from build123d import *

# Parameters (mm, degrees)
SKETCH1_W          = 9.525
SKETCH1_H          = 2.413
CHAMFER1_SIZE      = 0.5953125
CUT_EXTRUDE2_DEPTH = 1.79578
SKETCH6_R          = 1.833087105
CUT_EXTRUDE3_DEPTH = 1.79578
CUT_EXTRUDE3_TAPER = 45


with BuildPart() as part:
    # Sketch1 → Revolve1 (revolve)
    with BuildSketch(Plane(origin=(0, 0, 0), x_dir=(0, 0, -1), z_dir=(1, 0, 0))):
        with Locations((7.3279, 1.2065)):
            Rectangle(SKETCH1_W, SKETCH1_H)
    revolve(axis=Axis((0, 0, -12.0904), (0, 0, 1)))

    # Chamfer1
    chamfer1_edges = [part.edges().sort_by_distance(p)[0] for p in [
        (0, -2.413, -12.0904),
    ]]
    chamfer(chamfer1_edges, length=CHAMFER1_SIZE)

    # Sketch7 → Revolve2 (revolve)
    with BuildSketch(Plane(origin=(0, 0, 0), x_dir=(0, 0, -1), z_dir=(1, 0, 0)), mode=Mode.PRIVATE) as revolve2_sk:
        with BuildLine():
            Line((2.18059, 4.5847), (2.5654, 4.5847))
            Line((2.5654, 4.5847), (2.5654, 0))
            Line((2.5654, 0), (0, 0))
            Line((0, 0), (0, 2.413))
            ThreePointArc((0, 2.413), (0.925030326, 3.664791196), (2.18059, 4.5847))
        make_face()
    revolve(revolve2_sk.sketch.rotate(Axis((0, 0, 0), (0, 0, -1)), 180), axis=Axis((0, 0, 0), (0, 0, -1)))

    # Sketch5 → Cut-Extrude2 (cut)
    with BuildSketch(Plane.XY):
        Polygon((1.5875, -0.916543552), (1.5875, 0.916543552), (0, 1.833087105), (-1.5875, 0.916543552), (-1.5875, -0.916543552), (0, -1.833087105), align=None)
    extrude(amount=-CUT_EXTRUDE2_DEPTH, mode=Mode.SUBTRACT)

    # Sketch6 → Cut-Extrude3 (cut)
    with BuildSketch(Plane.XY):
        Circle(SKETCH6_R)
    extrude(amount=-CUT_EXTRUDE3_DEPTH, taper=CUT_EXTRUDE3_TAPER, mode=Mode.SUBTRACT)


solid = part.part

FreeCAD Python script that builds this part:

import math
import FreeCAD as App
import Part
import Sketcher
from FreeCAD import Vector
Q = App.Units.Quantity


def edges_at(feature, points):
    """Names of the edges that pass closest to the given points."""
    edges = feature.Shape.Edges
    near = lambda p: min(range(len(edges)), key=lambda i: edges[i].distToShape(Part.Vertex(*p))[0])
    return sorted({f"Edge{near(p) + 1}" for p in points})

doc = App.newDocument("Part")
params = doc.addObject("Spreadsheet::Sheet", "Params")
for row, (alias, value) in enumerate([
    ("sketch1_width", "0.095 in"),
    ("sketch1_height", "0.375 in"),
    ("revolution_angle", "360 deg"),
    ("chamfer_size", "0.595313 mm"),
    ("sketch2_width", "0.095 in"),
    ("sketch2_height", "0.101 in"),
    ("revolution2_angle", "360 deg"),
    ("pocket1_length", "0.0707 in"),
    ("pocket2_length", "0.0707 in"),
    ("pocket2_taper", "-45 deg"),
], start=1):
    params.set(f"A{row}", alias)
    params.set(f"B{row}", "=" + value)
    params.setAlias(f"B{row}", alias)

body = doc.addObject("PartDesign::Body", "Body")

# Sketch on YZ plane
sketch1 = doc.addObject("Sketcher::SketchObject", "Sketch")
body.addObject(sketch1)
sketch1.AttachmentSupport = (doc.YZ_Plane, [""])
sketch1.MapMode = "FlatFace"
sketch1.addGeometry(Part.LineSegment(Vector(2.4, -2.6, 0), Vector(0, -2.6, 0)), False)
sketch1.addGeometry(Part.LineSegment(Vector(0, -2.6, 0), Vector(0, -12.1, 0)), False)
sketch1.addGeometry(Part.LineSegment(Vector(0, -12.1, 0), Vector(2.4, -12.1, 0)), False)
sketch1.addGeometry(Part.LineSegment(Vector(2.4, -12.1, 0), Vector(2.4, -2.6, 0)), False)
sketch1.addConstraint(Sketcher.Constraint("Coincident", 0, 2, 1, 1))
sketch1.addConstraint(Sketcher.Constraint("Coincident", 1, 2, 2, 1))
sketch1.addConstraint(Sketcher.Constraint("Coincident", 2, 2, 3, 1))
sketch1.addConstraint(Sketcher.Constraint("Coincident", 3, 2, 0, 1))
sketch1.addConstraint(Sketcher.Constraint("Horizontal", 0))
sketch1.addConstraint(Sketcher.Constraint("Vertical", 1))
sketch1.addConstraint(Sketcher.Constraint("Horizontal", 2))
sketch1.addConstraint(Sketcher.Constraint("Vertical", 3))
sketch1.addConstraint(Sketcher.Constraint("PointOnObject", 0, 2, -2))
sketch1.addConstraint(Sketcher.Constraint("DistanceX", 0, 2, 0, 1, Q("0.095 in")))
sketch1.addConstraint(Sketcher.Constraint("DistanceY", 1, 2, 1, 1, Q("0.375 in")))
sketch1.addConstraint(Sketcher.Constraint("DistanceY", 0, 2, -1, 1, Q("0.101 in")))
sketch1.setExpression("Constraints[9]", "Params.sketch1_width")
sketch1.setExpression("Constraints[10]", "Params.sketch1_height")
revolution = doc.addObject("PartDesign::Revolution", "Revolution")
body.addObject(revolution)
revolution.Profile = sketch1
revolution.ReferenceAxis = (sketch1, ["V_Axis"])
revolution.setExpression("Angle", "Params.revolution_angle")
doc.recompute()

chamfer = doc.addObject("PartDesign::Chamfer", "Chamfer")
body.addObject(chamfer)
chamfer.Base = (revolution, edges_at(revolution, [(0, -2.413, -12.09)]))
chamfer.setExpression("Size", "Params.chamfer_size")

# Sketch on YZ plane
sketch2 = doc.addObject("Sketcher::SketchObject", "Sketch001")
body.addObject(sketch2)
sketch2.AttachmentSupport = (doc.YZ_Plane, [""])
sketch2.MapMode = "FlatFace"
sketch2.addGeometry(Part.LineSegment(Vector(4.58, -2.57, 0), Vector(4.58, -2.18, 0)), False)
sketch2.addGeometry(Part.ArcOfCircle(Part.Circle(Vector(0, -4.57, 0), Vector(0, 0, 1), 5.17), math.radians(28), math.radians(62)), False)
sketch2.addGeometry(Part.LineSegment(Vector(2.41, 0, 0), Vector(0, 0, 0)), False)
sketch2.addGeometry(Part.LineSegment(Vector(0, 0, 0), Vector(0, -2.57, 0)), False)
sketch2.addGeometry(Part.LineSegment(Vector(0, -2.57, 0), Vector(4.58, -2.57, 0)), False)
sketch2.addConstraint(Sketcher.Constraint("Coincident", 0, 2, 1, 1))
sketch2.addConstraint(Sketcher.Constraint("Coincident", 1, 2, 2, 1))
sketch2.addConstraint(Sketcher.Constraint("Coincident", 2, 2, 3, 1))
sketch2.addConstraint(Sketcher.Constraint("Coincident", 3, 2, 4, 1))
sketch2.addConstraint(Sketcher.Constraint("Coincident", 4, 2, 0, 1))
sketch2.addConstraint(Sketcher.Constraint("Vertical", 0))
sketch2.addConstraint(Sketcher.Constraint("Horizontal", 2))
sketch2.addConstraint(Sketcher.Constraint("Vertical", 3))
sketch2.addConstraint(Sketcher.Constraint("Horizontal", 4))
sketch2.addConstraint(Sketcher.Constraint("Coincident", 2, 2, -1, 1))
sketch2.addConstraint(Sketcher.Constraint("PointOnObject", 1, 3, -2))
sketch2.addConstraint(Sketcher.Constraint("DistanceX", 2, 2, 2, 1, Q("0.095 in")))
sketch2.addConstraint(Sketcher.Constraint("DistanceY", 3, 2, 3, 1, Q("0.101 in")))
sketch2.addConstraint(Sketcher.Constraint("DistanceX", 4, 1, 4, 2, Q("0.1805 in")))
sketch2.addConstraint(Sketcher.Constraint("Radius", 1, Q("5.172243 mm")))
sketch2.setExpression("Constraints[11]", "Params.sketch2_width")
sketch2.setExpression("Constraints[12]", "Params.sketch2_height")
revolution2 = doc.addObject("PartDesign::Revolution", "Revolution001")
body.addObject(revolution2)
revolution2.Profile = sketch2
revolution2.ReferenceAxis = (sketch2, ["V_Axis"])
revolution2.setExpression("Angle", "Params.revolution2_angle")

# Sketch on XY plane
sketch3 = doc.addObject("Sketcher::SketchObject", "Sketch002")
body.addObject(sketch3)
sketch3.AttachmentSupport = (doc.XY_Plane, [""])
sketch3.MapMode = "FlatFace"
sketch3.addGeometry(Part.LineSegment(Vector(1.6, -0.9, 0), Vector(1.6, 0.9, 0)), False)
sketch3.addGeometry(Part.LineSegment(Vector(1.6, 0.9, 0), Vector(0, 1.8, 0)), False)
sketch3.addGeometry(Part.LineSegment(Vector(0, 1.8, 0), Vector(-1.6, 0.9, 0)), False)
sketch3.addGeometry(Part.LineSegment(Vector(-1.6, 0.9, 0), Vector(-1.6, -0.9, 0)), False)
sketch3.addGeometry(Part.LineSegment(Vector(-1.6, -0.9, 0), Vector(0, -1.8, 0)), False)
sketch3.addGeometry(Part.LineSegment(Vector(0, -1.8, 0), Vector(1.6, -0.9, 0)), False)
sketch3.addConstraint(Sketcher.Constraint("Coincident", 0, 2, 1, 1))
sketch3.addConstraint(Sketcher.Constraint("Coincident", 1, 2, 2, 1))
sketch3.addConstraint(Sketcher.Constraint("Coincident", 2, 2, 3, 1))
sketch3.addConstraint(Sketcher.Constraint("Coincident", 3, 2, 4, 1))
sketch3.addConstraint(Sketcher.Constraint("Coincident", 4, 2, 5, 1))
sketch3.addConstraint(Sketcher.Constraint("Coincident", 5, 2, 0, 1))
sketch3.addConstraint(Sketcher.Constraint("Vertical", 0))
sketch3.addConstraint(Sketcher.Constraint("Vertical", 3))
sketch3.addConstraint(Sketcher.Constraint("Symmetric", 0, 2, 3, 2, -1, 1))
sketch3.addConstraint(Sketcher.Constraint("Symmetric", 1, 2, 4, 2, -1, 1))
sketch3.addConstraint(Sketcher.Constraint("PointOnObject", 1, 2, -2))
sketch3.addConstraint(Sketcher.Constraint("Parallel", 2, 5))
sketch3.addConstraint(Sketcher.Constraint("Horizontal", 0, 2, 2, 2))
sketch3.addConstraint(Sketcher.Constraint("Angle", 1, Q("150 deg")))
sketch3.addConstraint(Sketcher.Constraint("DistanceX", -1, 1, 0, 2, Q("0.0625 in")))
sketch3.addConstraint(Sketcher.Constraint("DistanceY", 0, 1, 0, 2, Q("1.833087 mm")))
pocket1 = doc.addObject("PartDesign::Pocket", "Pocket")
body.addObject(pocket1)
pocket1.Profile = sketch3
pocket1.setExpression("Length", "Params.pocket1_length")

# Sketch on XY plane
sketch4 = doc.addObject("Sketcher::SketchObject", "Sketch003")
body.addObject(sketch4)
sketch4.AttachmentSupport = (doc.XY_Plane, [""])
sketch4.MapMode = "FlatFace"
sketch4.addGeometry(Part.Circle(Vector(0, 0, 0), Vector(0, 0, 1), 1.8), False)
sketch4.addConstraint(Sketcher.Constraint("Coincident", 0, 3, -1, 1))
sketch4.addConstraint(Sketcher.Constraint("Diameter", 0, Q("3.666174 mm")))
pocket2 = doc.addObject("PartDesign::Pocket", "Pocket001")
body.addObject(pocket2)
pocket2.Profile = sketch4
pocket2.setExpression("Length", "Params.pocket2_length")
pocket2.setExpression("TaperAngle", "Params.pocket2_taper")

doc.recompute()
